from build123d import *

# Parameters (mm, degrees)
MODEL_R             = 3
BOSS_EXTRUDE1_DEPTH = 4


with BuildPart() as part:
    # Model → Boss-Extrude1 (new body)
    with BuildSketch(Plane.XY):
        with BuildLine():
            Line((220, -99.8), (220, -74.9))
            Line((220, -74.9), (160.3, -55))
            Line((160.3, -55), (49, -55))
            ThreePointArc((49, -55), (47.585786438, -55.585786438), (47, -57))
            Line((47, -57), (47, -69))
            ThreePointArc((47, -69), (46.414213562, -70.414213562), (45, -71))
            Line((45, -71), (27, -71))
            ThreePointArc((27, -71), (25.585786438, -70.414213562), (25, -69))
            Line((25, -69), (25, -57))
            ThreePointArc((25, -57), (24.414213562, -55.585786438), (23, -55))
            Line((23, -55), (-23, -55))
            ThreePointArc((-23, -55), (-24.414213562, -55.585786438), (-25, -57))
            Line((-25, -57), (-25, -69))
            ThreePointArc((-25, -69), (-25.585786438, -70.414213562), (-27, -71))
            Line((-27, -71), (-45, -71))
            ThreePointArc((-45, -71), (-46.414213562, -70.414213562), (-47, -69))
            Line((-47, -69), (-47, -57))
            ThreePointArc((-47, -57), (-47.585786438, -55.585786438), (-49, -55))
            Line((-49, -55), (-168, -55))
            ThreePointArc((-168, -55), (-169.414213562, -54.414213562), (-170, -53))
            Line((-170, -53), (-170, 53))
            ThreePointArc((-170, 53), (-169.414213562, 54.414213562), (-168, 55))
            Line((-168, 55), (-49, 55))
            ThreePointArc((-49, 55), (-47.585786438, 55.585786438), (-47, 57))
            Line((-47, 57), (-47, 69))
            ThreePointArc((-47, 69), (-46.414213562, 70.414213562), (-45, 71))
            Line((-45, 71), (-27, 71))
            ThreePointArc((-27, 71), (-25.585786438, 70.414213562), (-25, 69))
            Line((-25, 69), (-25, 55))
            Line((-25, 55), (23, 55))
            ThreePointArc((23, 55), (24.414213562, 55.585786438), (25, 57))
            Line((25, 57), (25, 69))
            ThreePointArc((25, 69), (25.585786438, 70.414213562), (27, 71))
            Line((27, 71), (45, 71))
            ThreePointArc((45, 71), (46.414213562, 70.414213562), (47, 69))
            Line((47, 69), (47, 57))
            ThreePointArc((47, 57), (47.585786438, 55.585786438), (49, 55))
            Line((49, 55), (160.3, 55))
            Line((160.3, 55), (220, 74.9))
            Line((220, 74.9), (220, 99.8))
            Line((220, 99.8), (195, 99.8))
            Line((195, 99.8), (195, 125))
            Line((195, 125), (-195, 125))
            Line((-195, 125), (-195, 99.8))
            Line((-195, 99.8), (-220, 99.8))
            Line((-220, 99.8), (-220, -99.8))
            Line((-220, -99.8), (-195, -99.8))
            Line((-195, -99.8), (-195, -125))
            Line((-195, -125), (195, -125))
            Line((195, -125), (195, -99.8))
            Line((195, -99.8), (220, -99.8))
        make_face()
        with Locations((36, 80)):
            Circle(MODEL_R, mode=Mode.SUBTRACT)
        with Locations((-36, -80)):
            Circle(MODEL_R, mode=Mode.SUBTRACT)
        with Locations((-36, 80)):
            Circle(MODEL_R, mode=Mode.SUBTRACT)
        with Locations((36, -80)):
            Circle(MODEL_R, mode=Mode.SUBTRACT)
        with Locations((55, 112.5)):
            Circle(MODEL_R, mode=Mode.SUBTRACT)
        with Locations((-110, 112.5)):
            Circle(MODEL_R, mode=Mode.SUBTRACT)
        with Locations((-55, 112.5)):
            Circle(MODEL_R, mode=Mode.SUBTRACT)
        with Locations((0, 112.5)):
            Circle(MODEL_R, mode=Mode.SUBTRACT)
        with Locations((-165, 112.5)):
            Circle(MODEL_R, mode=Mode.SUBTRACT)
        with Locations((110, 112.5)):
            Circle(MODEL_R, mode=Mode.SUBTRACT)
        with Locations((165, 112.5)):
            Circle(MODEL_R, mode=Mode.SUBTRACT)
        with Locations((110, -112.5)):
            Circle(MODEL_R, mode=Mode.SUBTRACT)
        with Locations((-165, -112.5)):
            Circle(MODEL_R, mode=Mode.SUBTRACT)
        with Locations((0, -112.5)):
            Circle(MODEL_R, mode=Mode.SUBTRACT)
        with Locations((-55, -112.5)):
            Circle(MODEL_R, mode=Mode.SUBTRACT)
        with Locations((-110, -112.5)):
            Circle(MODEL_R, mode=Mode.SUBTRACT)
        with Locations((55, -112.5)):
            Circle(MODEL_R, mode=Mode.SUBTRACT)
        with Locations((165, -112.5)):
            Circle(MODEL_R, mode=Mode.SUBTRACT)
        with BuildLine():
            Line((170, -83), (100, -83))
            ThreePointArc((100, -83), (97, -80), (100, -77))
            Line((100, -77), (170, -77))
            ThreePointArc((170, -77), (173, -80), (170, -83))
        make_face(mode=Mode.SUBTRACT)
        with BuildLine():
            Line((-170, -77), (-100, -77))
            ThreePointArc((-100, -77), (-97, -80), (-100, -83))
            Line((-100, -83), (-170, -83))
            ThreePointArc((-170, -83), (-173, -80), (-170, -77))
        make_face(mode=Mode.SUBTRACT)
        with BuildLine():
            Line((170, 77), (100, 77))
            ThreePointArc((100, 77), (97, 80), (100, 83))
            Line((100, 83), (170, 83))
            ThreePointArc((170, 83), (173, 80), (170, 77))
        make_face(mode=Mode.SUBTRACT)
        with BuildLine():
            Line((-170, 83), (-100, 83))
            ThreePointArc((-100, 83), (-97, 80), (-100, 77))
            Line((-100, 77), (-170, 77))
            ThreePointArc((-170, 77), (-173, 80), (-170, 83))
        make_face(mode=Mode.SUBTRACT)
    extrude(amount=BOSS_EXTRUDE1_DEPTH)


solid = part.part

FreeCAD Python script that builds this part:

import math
import FreeCAD as App
import Part
import Sketcher
from FreeCAD import Vector
Q = App.Units.Quantity

doc = App.newDocument("Part")
params = doc.addObject("Spreadsheet::Sheet", "Params")
for row, (alias, value) in enumerate([
    ("sketch1_diameter", "6 mm"),
    ("sketch1_radius", "2 mm"),
    ("sketch1_width", "18 mm"),
    ("sketch1_width2", "46 mm"),
    ("sketch1_width3", "119 mm"),
    ("pad1_length", "4 mm"),
], start=1):
    params.set(f"A{row}", alias)
    params.set(f"B{row}", "=" + value)
    params.setAlias(f"B{row}", alias)

body = doc.addObject("PartDesign::Body", "Body")

# Sketch on XY plane
sketch1 = body.newObject("Sketcher::SketchObject", "Sketch")
sketch1.AttachmentSupport = (doc.getObject("XY_Plane"), [""])
sketch1.MapMode = "FlatFace"
sketch1.addGeometry(Part.LineSegment(Vector(220, -99.8, 0), Vector(220, -74.9, 0)), False)
sketch1.addGeometry(Part.LineSegment(Vector(220, -74.9, 0), Vector(160.3, -55, 0)), False)
sketch1.addGeometry(Part.LineSegment(Vector(160.3, -55, 0), Vector(49, -55, 0)), False)
sketch1.addGeometry(Part.ArcOfCircle(Part.Circle(Vector(49, -57, 0), Vector(0, 0, 1), 2), math.radians(90), math.radians(180)), False)
sketch1.addGeometry(Part.LineSegment(Vector(47, -57, 0), Vector(47, -69, 0)), False)
sketch1.addGeometry(Part.ArcOfCircle(Part.Circle(Vector(45, -69, 0), Vector(0, 0, 1), 2), math.radians(-90), math.radians(0)), False)
sketch1.addGeometry(Part.LineSegment(Vector(45, -71, 0), Vector(27, -71, 0)), False)
sketch1.addGeometry(Part.ArcOfCircle(Part.Circle(Vector(27, -69, 0), Vector(0, 0, 1), 2), math.radians(-180), math.radians(-90)), False)
sketch1.addGeometry(Part.LineSegment(Vector(25, -69, 0), Vector(25, -57, 0)), False)
sketch1.addGeometry(Part.ArcOfCircle(Part.Circle(Vector(23, -57, 0), Vector(0, 0, 1), 2), math.radians(0), math.radians(90)), False)
sketch1.addGeometry(Part.LineSegment(Vector(23, -55, 0), Vector(-23, -55, 0)), False)
sketch1.addGeometry(Part.ArcOfCircle(Part.Circle(Vector(-23, -57, 0), Vector(0, 0, 1), 2), math.radians(90), math.radians(180)), False)
sketch1.addGeometry(Part.LineSegment(Vector(-25, -57, 0), Vector(-25, -69, 0)), False)
sketch1.addGeometry(Part.ArcOfCircle(Part.Circle(Vector(-27, -69, 0), Vector(0, 0, 1), 2), math.radians(-90), math.radians(0)), False)
sketch1.addGeometry(Part.LineSegment(Vector(-27, -71, 0), Vector(-45, -71, 0)), False)
sketch1.addGeometry(Part.ArcOfCircle(Part.Circle(Vector(-45, -69, 0), Vector(0, 0, 1), 2), math.radians(-180), math.radians(-90)), False)
sketch1.addGeometry(Part.LineSegment(Vector(-47, -69, 0), Vector(-47, -57, 0)), False)
sketch1.addGeometry(Part.ArcOfCircle(Part.Circle(Vector(-49, -57, 0), Vector(0, 0, 1), 2), math.radians(0), math.radians(90)), False)
sketch1.addGeometry(Part.LineSegment(Vector(-49, -55, 0), Vector(-168, -55, 0)), False)
sketch1.addGeometry(Part.ArcOfCircle(Part.Circle(Vector(-168, -53, 0), Vector(0, 0, 1), 2), math.radians(-180), math.radians(-90)), False)
sketch1.addGeometry(Part.LineSegment(Vector(-170, -53, 0), Vector(-170, 53, 0)), False)
sketch1.addGeometry(Part.ArcOfCircle(Part.Circle(Vector(-168, 53, 0), Vector(0, 0, 1), 2), math.radians(90), math.radians(180)), False)
sketch1.addGeometry(Part.LineSegment(Vector(-168, 55, 0), Vector(-49, 55, 0)), False)
sketch1.addGeometry(Part.ArcOfCircle(Part.Circle(Vector(-49, 57, 0), Vector(0, 0, 1), 2), math.radians(-90), math.radians(0)), False)
sketch1.addGeometry(Part.LineSegment(Vector(-47, 57, 0), Vector(-47, 69, 0)), False)
sketch1.addGeometry(Part.ArcOfCircle(Part.Circle(Vector(-45, 69, 0), Vector(0, 0, 1), 2), math.radians(90), math.radians(180)), False)
sketch1.addGeometry(Part.LineSegment(Vector(-45, 71, 0), Vector(-27, 71, 0)), False)
sketch1.addGeometry(Part.ArcOfCircle(Part.Circle(Vector(-27, 69, 0), Vector(0, 0, 1), 2), math.radians(0), math.radians(90)), False)
sketch1.addGeometry(Part.LineSegment(Vector(-25, 69, 0), Vector(-25, 55, 0)), False)
sketch1.addGeometry(Part.LineSegment(Vector(-25, 55, 0), Vector(23, 55, 0)), False)
sketch1.addGeometry(Part.ArcOfCircle(Part.Circle(Vector(23, 57, 0), Vector(0, 0, 1), 2), math.radians(-90), math.radians(0)), False)
sketch1.addGeometry(Part.LineSegment(Vector(25, 57, 0), Vector(25, 69, 0)), False)
sketch1.addGeometry(Part.ArcOfCircle(Part.Circle(Vector(27, 69, 0), Vector(0, 0, 1), 2), math.radians(90), math.radians(180)), False)
sketch1.addGeometry(Part.LineSegment(Vector(27, 71, 0), Vector(45, 71, 0)), False)
sketch1.addGeometry(Part.ArcOfCircle(Part.Circle(Vector(45, 69, 0), Vector(0, 0, 1), 2), math.radians(0), math.radians(90)), False)
sketch1.addGeometry(Part.LineSegment(Vector(47, 69, 0), Vector(47, 57, 0)), False)
sketch1.addGeometry(Part.ArcOfCircle(Part.Circle(Vector(49, 57, 0), Vector(0, 0, 1), 2), math.radians(-180), math.radians(-90)), False)
sketch1.addGeometry(Part.LineSegment(Vector(49, 55, 0), Vector(160.3, 55, 0)), False)
sketch1.addGeometry(Part.LineSegment(Vector(160.3, 55, 0), Vector(220, 74.9, 0)), False)
sketch1.addGeometry(Part.LineSegment(Vector(220, 74.9, 0), Vector(220, 99.8, 0)), False)
sketch1.addGeometry(Part.LineSegment(Vector(220, 99.8, 0), Vector(195, 99.8, 0)), False)
sketch1.addGeometry(Part.LineSegment(Vector(195, 99.8, 0), Vector(195, 125, 0)), False)
sketch1.addGeometry(Part.LineSegment(Vector(195, 125, 0), Vector(-195, 125, 0)), False)
sketch1.addGeometry(Part.LineSegment(Vector(-195, 125, 0), Vector(-195, 99.8, 0)), False)
sketch1.addGeometry(Part.LineSegment(Vector(-195, 99.8, 0), Vector(-220, 99.8, 0)), False)
sketch1.addGeometry(Part.LineSegment(Vector(-220, 99.8, 0), Vector(-220, -99.8, 0)), False)
sketch1.addGeometry(Part.LineSegment(Vector(-220, -99.8, 0), Vector(-195, -99.8, 0)), False)
sketch1.addGeometry(Part.LineSegment(Vector(-195, -99.8, 0), Vector(-195, -125, 0)), False)
sketch1.addGeometry(Part.LineSegment(Vector(-195, -125, 0), Vector(195, -125, 0)), False)
sketch1.addGeometry(Part.LineSegment(Vector(195, -125, 0), Vector(195, -99.8, 0)), False)
sketch1.addGeometry(Part.LineSegment(Vector(195, -99.8, 0), Vector(220, -99.8, 0)), False)
sketch1.addGeometry(Part.Circle(Vector(-165, -112.5, 0), Vector(0, 0, 1), 3), False)
sketch1.addGeometry(Part.Circle(Vector(-110, -112.5, 0), Vector(0, 0, 1), 3), False)
sketch1.addGeometry(Part.ArcOfCircle(Part.Circle(Vector(-170, -80, 0), Vector(0, 0, 1), 3), math.radians(90), math.radians(270)), False)
sketch1.addGeometry(Part.LineSegment(Vector(-170, -77, 0), Vector(-100, -77, 0)), False)
sketch1.addGeometry(Part.ArcOfCircle(Part.Circle(Vector(-100, -80, 0), Vector(0, 0, 1), 3), math.radians(-90), math.radians(90)), False)
sketch1.addGeometry(Part.LineSegment(Vector(-100, -83, 0), Vector(-170, -83, 0)), False)
sketch1.addGeometry(Part.Circle(Vector(-55, -112.5, 0), Vector(0, 0, 1), 3), False)
sketch1.addGeometry(Part.Circle(Vector(-36, -80, 0), Vector(0, 0, 1), 3), False)
sketch1.addGeometry(Part.Circle(Vector(0, -112.5, 0), Vector(0, 0, 1), 3), False)
sketch1.addGeometry(Part.Circle(Vector(55, -112.5, 0), Vector(0, 0, 1), 3), False)
sketch1.addGeometry(Part.Circle(Vector(36, -80, 0), Vector(0, 0, 1), 3), False)
sketch1.addGeometry(Part.Circle(Vector(110, -112.5, 0), Vector(0, 0, 1), 3), False)
sketch1.addGeometry(Part.Circle(Vector(165, -112.5, 0), Vector(0, 0, 1), 3), False)
sketch1.addGeometry(Part.ArcOfCircle(Part.Circle(Vector(170, -80, 0), Vector(0, 0, 1), 3), math.radians(-90), math.radians(90)), False)
sketch1.addGeometry(Part.LineSegment(Vector(170, -83, 0), Vector(100, -83, 0)), False)
sketch1.addGeometry(Part.ArcOfCircle(Part.Circle(Vector(100, -80, 0), Vector(0, 0, 1), 3), math.radians(90), math.radians(270)), False)
sketch1.addGeometry(Part.LineSegment(Vector(100, -77, 0), Vector(170, -77, 0)), False)
sketch1.addGeometry(Part.ArcOfCircle(Part.Circle(Vector(-170, 80, 0), Vector(0, 0, 1), 3), math.radians(90), math.radians(270)), False)
sketch1.addGeometry(Part.LineSegment(Vector(-170, 83, 0), Vector(-100, 83, 0)), False)
sketch1.addGeometry(Part.ArcOfCircle(Part.Circle(Vector(-100, 80, 0), Vector(0, 0, 1), 3), math.radians(-90), math.radians(90)), False)
sketch1.addGeometry(Part.LineSegment(Vector(-100, 77, 0), Vector(-170, 77, 0)), False)
sketch1.addGeometry(Part.Circle(Vector(-165, 112.5, 0), Vector(0, 0, 1), 3), False)
sketch1.addGeometry(Part.Circle(Vector(-110, 112.5, 0), Vector(0, 0, 1), 3), False)
sketch1.addGeometry(Part.Circle(Vector(-36, 80, 0), Vector(0, 0, 1), 3), False)
sketch1.addGeometry(Part.Circle(Vector(-55, 112.5, 0), Vector(0, 0, 1), 3), False)
sketch1.addGeometry(Part.Circle(Vector(36, 80, 0), Vector(0, 0, 1), 3), False)
sketch1.addGeometry(Part.Circle(Vector(0, 112.5, 0), Vector(0, 0, 1), 3), False)
sketch1.addGeometry(Part.Circle(Vector(55, 112.5, 0), Vector(0, 0, 1), 3), False)
sketch1.addGeometry(Part.ArcOfCircle(Part.Circle(Vector(170, 80, 0), Vector(0, 0, 1), 3), math.radians(-90), math.radians(90)), False)
sketch1.addGeometry(Part.LineSegment(Vector(170, 77, 0), Vector(100, 77, 0)), False)
sketch1.addGeometry(Part.ArcOfCircle(Part.Circle(Vector(100, 80, 0), Vector(0, 0, 1), 3), math.radians(90), math.radians(270)), False)
sketch1.addGeometry(Part.LineSegment(Vector(100, 83, 0), Vector(170, 83, 0)), False)
sketch1.addGeometry(Part.Circle(Vector(110, 112.5, 0), Vector(0, 0, 1), 3), False)
sketch1.addGeometry(Part.Circle(Vector(165, 112.5, 0), Vector(0, 0, 1), 3), False)
sketch1.addConstraint(Sketcher.Constraint("Coincident", 0, 2, 1, 1))
sketch1.addConstraint(Sketcher.Constraint("Coincident", 1, 2, 2, 1))
sketch1.addConstraint(Sketcher.Constraint("Tangent", 2, 2, 3, 1))
sketch1.addConstraint(Sketcher.Constraint("Tangent", 3, 2, 4, 1))
sketch1.addConstraint(Sketcher.Constraint("Tangent", 4, 2, 5, 2))
sketch1.addConstraint(Sketcher.Constraint("Tangent", 5, 1, 6, 1))
sketch1.addConstraint(Sketcher.Constraint("Tangent", 6, 2, 7, 2))
sketch1.addConstraint(Sketcher.Constraint("Tangent", 7, 1, 8, 1))
sketch1.addConstraint(Sketcher.Constraint("Tangent", 8, 2, 9, 1))
sketch1.addConstraint(Sketcher.Constraint("Tangent", 9, 2, 10, 1))
sketch1.addConstraint(Sketcher.Constraint("Tangent", 10, 2, 11, 1))
sketch1.addConstraint(Sketcher.Constraint("Tangent", 11, 2, 12, 1))
sketch1.addConstraint(Sketcher.Constraint("Tangent", 12, 2, 13, 2))
sketch1.addConstraint(Sketcher.Constraint("Tangent", 13, 1, 14, 1))
sketch1.addConstraint(Sketcher.Constraint("Tangent", 14, 2, 15, 2))
sketch1.addConstraint(Sketcher.Constraint("Tangent", 15, 1, 16, 1))
sketch1.addConstraint(Sketcher.Constraint("Tangent", 16, 2, 17, 1))
sketch1.addConstraint(Sketcher.Constraint("Tangent", 17, 2, 18, 1))
sketch1.addConstraint(Sketcher.Constraint("Tangent", 18, 2, 19, 2))
sketch1.addConstraint(Sketcher.Constraint("Tangent", 19, 1, 20, 1))
sketch1.addConstraint(Sketcher.Constraint("Tangent", 20, 2, 21, 2))
sketch1.addConstraint(Sketcher.Constraint("Tangent", 21, 1, 22, 1))
sketch1.addConstraint(Sketcher.Constraint("Tangent", 22, 2, 23, 1))
sketch1.addConstraint(Sketcher.Constraint("Tangent", 23, 2, 24, 1))
sketch1.addConstraint(Sketcher.Constraint("Tangent", 24, 2, 25, 2))
sketch1.addConstraint(Sketcher.Constraint("Tangent", 25, 1, 26, 1))
sketch1.addConstraint(Sketcher.Constraint("Tangent", 26, 2, 27, 2))
sketch1.addConstraint(Sketcher.Constraint("Tangent", 27, 1, 28, 1))
sketch1.addConstraint(Sketcher.Constraint("Coincident", 28, 2, 29, 1))
sketch1.addConstraint(Sketcher.Constraint("Tangent", 29, 2, 30, 1))
sketch1.addConstraint(Sketcher.Constraint("Tangent", 30, 2, 31, 1))
sketch1.addConstraint(Sketcher.Constraint("Tangent", 31, 2, 32, 2))
sketch1.addConstraint(Sketcher.Constraint("Tangent", 32, 1, 33, 1))
sketch1.addConstraint(Sketcher.Constraint("Tangent", 33, 2, 34, 2))
sketch1.addConstraint(Sketcher.Constraint("Tangent", 34, 1, 35, 1))
sketch1.addConstraint(Sketcher.Constraint("Tangent", 35, 2, 36, 1))
sketch1.addConstraint(Sketcher.Constraint("Tangent", 36, 2, 37, 1))
sketch1.addConstraint(Sketcher.Constraint("Coincident", 37, 2, 38, 1))
sketch1.addConstraint(Sketcher.Constraint("Coincident", 38, 2, 39, 1))
sketch1.addConstraint(Sketcher.Constraint("Coincident", 39, 2, 40, 1))
sketch1.addConstraint(Sketcher.Constraint("Coincident", 40, 2, 41, 1))
sketch1.addConstraint(Sketcher.Constraint("Coincident", 41, 2, 42, 1))
sketch1.addConstraint(Sketcher.Constraint("Coincident", 42, 2, 43, 1))
sketch1.addConstraint(Sketcher.Constraint("Coincident", 43, 2, 44, 1))
sketch1.addConstraint(Sketcher.Constraint("Coincident", 44, 2, 45, 1))
sketch1.addConstraint(Sketcher.Constraint("Coincident", 45, 2, 46, 1))
sketch1.addConstraint(Sketcher.Constraint("Coincident", 46, 2, 47, 1))
sketch1.addConstraint(Sketcher.Constraint("Coincident", 47, 2, 48, 1))
sketch1.addConstraint(Sketcher.Constraint("Coincident", 48, 2, 49, 1))
sketch1.addConstraint(Sketcher.Constraint("Coincident", 49, 2, 50, 1))
sketch1.addConstraint(Sketcher.Constraint("Coincident", 50, 2, 0, 1))
sketch1.addConstraint(Sketcher.Constraint("Tangent", 53, 1, 54, 1))
sketch1.addConstraint(Sketcher.Constraint("Tangent", 54, 2, 55, 2))
sketch1.addConstraint(Sketcher.Constraint("Tangent", 55, 1, 56, 1))
sketch1.addConstraint(Sketcher.Constraint("Tangent", 56, 2, 53, 2))
sketch1.addConstraint(Sketcher.Constraint("Tangent", 64, 1, 65, 1))
sketch1.addConstraint(Sketcher.Constraint("Tangent", 65, 2, 66, 2))
sketch1.addConstraint(Sketcher.Constraint("Tangent", 66, 1, 67, 1))
sketch1.addConstraint(Sketcher.Constraint("Tangent", 67, 2, 64, 2))
sketch1.addConstraint(Sketcher.Constraint("Tangent", 68, 1, 69, 1))
sketch1.addConstraint(Sketcher.Constraint("Tangent", 69, 2, 70, 2))
sketch1.addConstraint(Sketcher.Constraint("Tangent", 70, 1, 71, 1))
sketch1.addConstraint(Sketcher.Constraint("Tangent", 71, 2, 68, 2))
sketch1.addConstraint(Sketcher.Constraint("Tangent", 79, 1, 80, 1))
sketch1.addConstraint(Sketcher.Constraint("Tangent", 80, 2, 81, 2))
sketch1.addConstraint(Sketcher.Constraint("Tangent", 81, 1, 82, 1))
sketch1.addConstraint(Sketcher.Constraint("Tangent", 82, 2, 79, 2))
sketch1.addConstraint(Sketcher.Constraint("Vertical", 0))
sketch1.addConstraint(Sketcher.Constraint("Horizontal", 2))
sketch1.addConstraint(Sketcher.Constraint("Vertical", 4))
sketch1.addConstraint(Sketcher.Constraint("Horizontal", 6))
sketch1.addConstraint(Sketcher.Constraint("Vertical", 8))
sketch1.addConstraint(Sketcher.Constraint("Horizontal", 10))
sketch1.addConstraint(Sketcher.Constraint("Vertical", 12))
sketch1.addConstraint(Sketcher.Constraint("Horizontal", 14))
sketch1.addConstraint(Sketcher.Constraint("Vertical", 16))
sketch1.addConstraint(Sketcher.Constraint("Horizontal", 18))
sketch1.addConstraint(Sketcher.Constraint("Vertical", 20))
sketch1.addConstraint(Sketcher.Constraint("Horizontal", 22))
sketch1.addConstraint(Sketcher.Constraint("Vertical", 24))
sketch1.addConstraint(Sketcher.Constraint("Horizontal", 26))
sketch1.addConstraint(Sketcher.Constraint("Vertical", 28))
sketch1.addConstraint(Sketcher.Constraint("Horizontal", 29))
sketch1.addConstraint(Sketcher.Constraint("Vertical", 31))
sketch1.addConstraint(Sketcher.Constraint("Horizontal", 33))
sketch1.addConstraint(Sketcher.Constraint("Vertical", 35))
sketch1.addConstraint(Sketcher.Constraint("Horizontal", 37))
sketch1.addConstraint(Sketcher.Constraint("Vertical", 39))
sketch1.addConstraint(Sketcher.Constraint("Horizontal", 40))
sketch1.addConstraint(Sketcher.Constraint("Vertical", 41))
sketch1.addConstraint(Sketcher.Constraint("Horizontal", 42))
sketch1.addConstraint(Sketcher.Constraint("Vertical", 43))
sketch1.addConstraint(Sketcher.Constraint("Horizontal", 44))
sketch1.addConstraint(Sketcher.Constraint("Vertical", 45))
sketch1.addConstraint(Sketcher.Constraint("Horizontal", 46))
sketch1.addConstraint(Sketcher.Constraint("Vertical", 47))
sketch1.addConstraint(Sketcher.Constraint("Horizontal", 48))
sketch1.addConstraint(Sketcher.Constraint("Vertical", 49))
sketch1.addConstraint(Sketcher.Constraint("Horizontal", 50))
sketch1.addConstraint(Sketcher.Constraint("Horizontal", 54))
sketch1.addConstraint(Sketcher.Constraint("Horizontal", 56))
sketch1.addConstraint(Sketcher.Constraint("Horizontal", 65))
sketch1.addConstraint(Sketcher.Constraint("Horizontal", 67))
sketch1.addConstraint(Sketcher.Constraint("Horizontal", 69))
sketch1.addConstraint(Sketcher.Constraint("Horizontal", 71))
sketch1.addConstraint(Sketcher.Constraint("Horizontal", 80))
sketch1.addConstraint(Sketcher.Constraint("Horizontal", 82))
sketch1.addConstraint(Sketcher.Constraint("Equal", 3, 5))
sketch1.addConstraint(Sketcher.Constraint("Equal", 5, 7))
sketch1.addConstraint(Sketcher.Constraint("Equal", 7, 9))
sketch1.addConstraint(Sketcher.Constraint("Equal", 9, 11))
sketch1.addConstraint(Sketcher.Constraint("Equal", 11, 13))
sketch1.addConstraint(Sketcher.Constraint("Equal", 13, 15))
sketch1.addConstraint(Sketcher.Constraint("Equal", 15, 17))
sketch1.addConstraint(Sketcher.Constraint("Equal", 17, 19))
sketch1.addConstraint(Sketcher.Constraint("Equal", 19, 21))
sketch1.addConstraint(Sketcher.Constraint("Equal", 21, 23))
sketch1.addConstraint(Sketcher.Constraint("Equal", 23, 25))
sketch1.addConstraint(Sketcher.Constraint("Equal", 25, 27))
sketch1.addConstraint(Sketcher.Constraint("Equal", 27, 30))
sketch1.addConstraint(Sketcher.Constraint("Equal", 30, 32))
sketch1.addConstraint(Sketcher.Constraint("Equal", 32, 34))
sketch1.addConstraint(Sketcher.Constraint("Equal", 34, 36))
sketch1.addConstraint(Sketcher.Constraint("Equal", 51, 52))
sketch1.addConstraint(Sketcher.Constraint("Equal", 52, 53))
sketch1.addConstraint(Sketcher.Constraint("Equal", 55, 57))
sketch1.addConstraint(Sketcher.Constraint("Equal", 57, 58))
sketch1.addConstraint(Sketcher.Constraint("Equal", 58, 59))
sketch1.addConstraint(Sketcher.Constraint("Equal", 59, 60))
sketch1.addConstraint(Sketcher.Constraint("Equal", 60, 61))
sketch1.addConstraint(Sketcher.Constraint("Equal", 61, 62))
sketch1.addConstraint(Sketcher.Constraint("Equal", 62, 63))
sketch1.addConstraint(Sketcher.Constraint("Equal", 63, 64))
sketch1.addConstraint(Sketcher.Constraint("Equal", 66, 68))
sketch1.addConstraint(Sketcher.Constraint("Equal", 70, 72))
sketch1.addConstraint(Sketcher.Constraint("Equal", 72, 73))
sketch1.addConstraint(Sketcher.Constraint("Equal", 73, 74))
sketch1.addConstraint(Sketcher.Constraint("Equal", 74, 75))
sketch1.addConstraint(Sketcher.Constraint("Equal", 75, 76))
sketch1.addConstraint(Sketcher.Constraint("Equal", 76, 77))
sketch1.addConstraint(Sketcher.Constraint("Equal", 77, 78))
sketch1.addConstraint(Sketcher.Constraint("Equal", 78, 79))
sketch1.addConstraint(Sketcher.Constraint("Equal", 81, 83))
sketch1.addConstraint(Sketcher.Constraint("Equal", 83, 84))
sketch1.addConstraint(Sketcher.Constraint("Symmetric", 3, 3, 23, 3, -1, 1))
sketch1.addConstraint(Sketcher.Constraint("Symmetric", 7, 3, 27, 3, -1, 1))
sketch1.addConstraint(Sketcher.Constraint("Symmetric", 11, 3, 30, 3, -1, 1))
sketch1.addConstraint(Sketcher.Constraint("Symmetric", 15, 3, 34, 3, -1, 1))
sketch1.addConstraint(Sketcher.Constraint("Symmetric", 64, 3, 68, 3, -1, 1))
sketch1.addConstraint(Sketcher.Constraint("Symmetric", 63, 3, 72, 3, -1, 1))
sketch1.addConstraint(Sketcher.Constraint("Symmetric", 62, 3, 73, 3, -1, 1))
sketch1.addConstraint(Sketcher.Constraint("Symmetric", 61, 3, 74, 3, -1, 1))
sketch1.addConstraint(Sketcher.Constraint("Symmetric", 60, 3, 75, 3, -1, 1))
sketch1.addConstraint(Sketcher.Constraint("Symmetric", 58, 3, 76, 3, -1, 1))
sketch1.addConstraint(Sketcher.Constraint("Symmetric", 59, 3, 77, 3, -1, 1))
sketch1.addConstraint(Sketcher.Constraint("Symmetric", 57, 3, 78, 3, -1, 1))
sketch1.addConstraint(Sketcher.Constraint("Symmetric", 53, 3, 79, 3, -1, 1))
sketch1.addConstraint(Sketcher.Constraint("Symmetric", 52, 3, 83, 3, -1, 1))
sketch1.addConstraint(Sketcher.Constraint("Symmetric", 51, 3, 84, 3, -1, 1))
sketch1.addConstraint(Sketcher.Constraint("Symmetric", 39, 2, 45, 2, -1, 1))
sketch1.addConstraint(Sketcher.Constraint("Symmetric", 41, 2, 47, 2, -1, 1))
sketch1.addConstraint(Sketcher.Constraint("Symmetric", 43, 2, 49, 2, -1, 1))
sketch1.addConstraint(Sketcher.Constraint("Symmetric", 7, 3, 13, 3, -2))
sketch1.addConstraint(Sketcher.Constraint("Symmetric", 3, 3, 17, 3, -2))
sketch1.addConstraint(Sketcher.Constraint("Symmetric", 57, 3, 60, 3, -2))
sketch1.addConstraint(Sketcher.Constraint("Symmetric", 58, 3, 61, 3, -2))
sketch1.addConstraint(Sketcher.Constraint("Symmetric", 52, 3, 62, 3, -2))
sketch1.addConstraint(Sketcher.Constraint("Symmetric", 51, 3, 63, 3, -2))
sketch1.addConstraint(Sketcher.Constraint("Symmetric", 53, 3, 64, 3, -2))
sketch1.addConstraint(Sketcher.Constraint("Symmetric", 40, 2, 43, 2, -2))
sketch1.addConstraint(Sketcher.Constraint("Symmetric", 1, 2, 37, 2, -1))
sketch1.addConstraint(Sketcher.Constraint("Symmetric", 0, 2, 38, 2, -1))
sketch1.addConstraint(Sketcher.Constraint("PointOnObject", 59, 3, -2))
sketch1.addConstraint(Sketcher.Constraint("Horizontal", 3, 3, 9, 3))
sketch1.addConstraint(Sketcher.Constraint("Horizontal", 51, 3, 52, 3))
sketch1.addConstraint(Sketcher.Constraint("Horizontal", 52, 3, 57, 3))
sketch1.addConstraint(Sketcher.Constraint("Horizontal", 55, 3, 58, 3))
sketch1.addConstraint(Sketcher.Constraint("Horizontal", 57, 3, 59, 3))
sketch1.addConstraint(Sketcher.Constraint("Vertical", 55, 3, 70, 3))
sketch1.addConstraint(Sketcher.Constraint("Vertical", 66, 3, 81, 3))
sketch1.addConstraint(Sketcher.Constraint("Vertical", 68, 3, 19, 1))
sketch1.addConstraint(Sketcher.Constraint("Equal", 56, 65))
sketch1.addConstraint(Sketcher.Constraint("Diameter", 51, Q("6 mm")))
sketch1.addConstraint(Sketcher.Constraint("Radius", 3, Q("2 mm")))
sketch1.addConstraint(Sketcher.Constraint("DistanceX", 6, 2, 6, 1, Q("18 mm")))
sketch1.addConstraint(Sketcher.Constraint("DistanceX", 10, 2, 10, 1, Q("46 mm")))
sketch1.addConstraint(Sketcher.Constraint("DistanceX", 18, 2, 18, 1, Q("119 mm")))
sketch1.addConstraint(Sketcher.Constraint("DistanceX", 40, 2, 40, 1, Q("25 mm")))
sketch1.addConstraint(Sketcher.Constraint("DistanceX", 42, 2, 42, 1, Q("390 mm")))
sketch1.addConstraint(Sketcher.Constraint("DistanceX", 54, 1, 54, 2, Q("70 mm")))
sketch1.addConstraint(Sketcher.Constraint("DistanceY", 4, 2, 4, 1, Q("12 mm")))
sketch1.addConstraint(Sketcher.Constraint("DistanceY", 20, 1, 20, 2, Q("106 mm")))
sketch1.addConstraint(Sketcher.Constraint("DistanceX", 2, 2, 2, 1, Q("111.3 mm")))
sketch1.addConstraint(Sketcher.Constraint("DistanceY", 0, 1, 0, 2, Q("24.9 mm")))
sketch1.addConstraint(Sketcher.Constraint("DistanceY", 41, 1, 41, 2, Q("25.2 mm")))
sketch1.addConstraint(Sketcher.Constraint("DistanceY", 45, 2, 45, 1, Q("199.6 mm")))
sketch1.addConstraint(Sketcher.Constraint("DistanceX", 51, 3, -1, 1, Q("165 mm")))
sketch1.addConstraint(Sketcher.Constraint("DistanceX", 52, 3, -1, 1, Q("110 mm")))
sketch1.addConstraint(Sketcher.Constraint("DistanceY", 53, 3, -1, 1, Q("80 mm")))
sketch1.addConstraint(Sketcher.Constraint("DistanceX", 57, 3, -1, 1, Q("55 mm")))
sketch1.addConstraint(Sketcher.Constraint("DistanceX", 58, 3, -1, 1, Q("36 mm")))
sketch1.addConstraint(Sketcher.Constraint("DistanceY", 51, 3, -1, 1, Q("112.5 mm")))
sketch1.setExpression("Constraints[182]", "Params.sketch1_diameter")
sketch1.setExpression("Constraints[183]", "Params.sketch1_radius")
sketch1.setExpression("Constraints[184]", "Params.sketch1_width")
sketch1.setExpression("Constraints[185]", "Params.sketch1_width2")
sketch1.setExpression("Constraints[186]", "Params.sketch1_width3")
pad1 = body.newObject("PartDesign::Pad", "Pad")
pad1.Profile = sketch1
pad1.setExpression("Length", "Params.pad1_length")

doc.recompute()
